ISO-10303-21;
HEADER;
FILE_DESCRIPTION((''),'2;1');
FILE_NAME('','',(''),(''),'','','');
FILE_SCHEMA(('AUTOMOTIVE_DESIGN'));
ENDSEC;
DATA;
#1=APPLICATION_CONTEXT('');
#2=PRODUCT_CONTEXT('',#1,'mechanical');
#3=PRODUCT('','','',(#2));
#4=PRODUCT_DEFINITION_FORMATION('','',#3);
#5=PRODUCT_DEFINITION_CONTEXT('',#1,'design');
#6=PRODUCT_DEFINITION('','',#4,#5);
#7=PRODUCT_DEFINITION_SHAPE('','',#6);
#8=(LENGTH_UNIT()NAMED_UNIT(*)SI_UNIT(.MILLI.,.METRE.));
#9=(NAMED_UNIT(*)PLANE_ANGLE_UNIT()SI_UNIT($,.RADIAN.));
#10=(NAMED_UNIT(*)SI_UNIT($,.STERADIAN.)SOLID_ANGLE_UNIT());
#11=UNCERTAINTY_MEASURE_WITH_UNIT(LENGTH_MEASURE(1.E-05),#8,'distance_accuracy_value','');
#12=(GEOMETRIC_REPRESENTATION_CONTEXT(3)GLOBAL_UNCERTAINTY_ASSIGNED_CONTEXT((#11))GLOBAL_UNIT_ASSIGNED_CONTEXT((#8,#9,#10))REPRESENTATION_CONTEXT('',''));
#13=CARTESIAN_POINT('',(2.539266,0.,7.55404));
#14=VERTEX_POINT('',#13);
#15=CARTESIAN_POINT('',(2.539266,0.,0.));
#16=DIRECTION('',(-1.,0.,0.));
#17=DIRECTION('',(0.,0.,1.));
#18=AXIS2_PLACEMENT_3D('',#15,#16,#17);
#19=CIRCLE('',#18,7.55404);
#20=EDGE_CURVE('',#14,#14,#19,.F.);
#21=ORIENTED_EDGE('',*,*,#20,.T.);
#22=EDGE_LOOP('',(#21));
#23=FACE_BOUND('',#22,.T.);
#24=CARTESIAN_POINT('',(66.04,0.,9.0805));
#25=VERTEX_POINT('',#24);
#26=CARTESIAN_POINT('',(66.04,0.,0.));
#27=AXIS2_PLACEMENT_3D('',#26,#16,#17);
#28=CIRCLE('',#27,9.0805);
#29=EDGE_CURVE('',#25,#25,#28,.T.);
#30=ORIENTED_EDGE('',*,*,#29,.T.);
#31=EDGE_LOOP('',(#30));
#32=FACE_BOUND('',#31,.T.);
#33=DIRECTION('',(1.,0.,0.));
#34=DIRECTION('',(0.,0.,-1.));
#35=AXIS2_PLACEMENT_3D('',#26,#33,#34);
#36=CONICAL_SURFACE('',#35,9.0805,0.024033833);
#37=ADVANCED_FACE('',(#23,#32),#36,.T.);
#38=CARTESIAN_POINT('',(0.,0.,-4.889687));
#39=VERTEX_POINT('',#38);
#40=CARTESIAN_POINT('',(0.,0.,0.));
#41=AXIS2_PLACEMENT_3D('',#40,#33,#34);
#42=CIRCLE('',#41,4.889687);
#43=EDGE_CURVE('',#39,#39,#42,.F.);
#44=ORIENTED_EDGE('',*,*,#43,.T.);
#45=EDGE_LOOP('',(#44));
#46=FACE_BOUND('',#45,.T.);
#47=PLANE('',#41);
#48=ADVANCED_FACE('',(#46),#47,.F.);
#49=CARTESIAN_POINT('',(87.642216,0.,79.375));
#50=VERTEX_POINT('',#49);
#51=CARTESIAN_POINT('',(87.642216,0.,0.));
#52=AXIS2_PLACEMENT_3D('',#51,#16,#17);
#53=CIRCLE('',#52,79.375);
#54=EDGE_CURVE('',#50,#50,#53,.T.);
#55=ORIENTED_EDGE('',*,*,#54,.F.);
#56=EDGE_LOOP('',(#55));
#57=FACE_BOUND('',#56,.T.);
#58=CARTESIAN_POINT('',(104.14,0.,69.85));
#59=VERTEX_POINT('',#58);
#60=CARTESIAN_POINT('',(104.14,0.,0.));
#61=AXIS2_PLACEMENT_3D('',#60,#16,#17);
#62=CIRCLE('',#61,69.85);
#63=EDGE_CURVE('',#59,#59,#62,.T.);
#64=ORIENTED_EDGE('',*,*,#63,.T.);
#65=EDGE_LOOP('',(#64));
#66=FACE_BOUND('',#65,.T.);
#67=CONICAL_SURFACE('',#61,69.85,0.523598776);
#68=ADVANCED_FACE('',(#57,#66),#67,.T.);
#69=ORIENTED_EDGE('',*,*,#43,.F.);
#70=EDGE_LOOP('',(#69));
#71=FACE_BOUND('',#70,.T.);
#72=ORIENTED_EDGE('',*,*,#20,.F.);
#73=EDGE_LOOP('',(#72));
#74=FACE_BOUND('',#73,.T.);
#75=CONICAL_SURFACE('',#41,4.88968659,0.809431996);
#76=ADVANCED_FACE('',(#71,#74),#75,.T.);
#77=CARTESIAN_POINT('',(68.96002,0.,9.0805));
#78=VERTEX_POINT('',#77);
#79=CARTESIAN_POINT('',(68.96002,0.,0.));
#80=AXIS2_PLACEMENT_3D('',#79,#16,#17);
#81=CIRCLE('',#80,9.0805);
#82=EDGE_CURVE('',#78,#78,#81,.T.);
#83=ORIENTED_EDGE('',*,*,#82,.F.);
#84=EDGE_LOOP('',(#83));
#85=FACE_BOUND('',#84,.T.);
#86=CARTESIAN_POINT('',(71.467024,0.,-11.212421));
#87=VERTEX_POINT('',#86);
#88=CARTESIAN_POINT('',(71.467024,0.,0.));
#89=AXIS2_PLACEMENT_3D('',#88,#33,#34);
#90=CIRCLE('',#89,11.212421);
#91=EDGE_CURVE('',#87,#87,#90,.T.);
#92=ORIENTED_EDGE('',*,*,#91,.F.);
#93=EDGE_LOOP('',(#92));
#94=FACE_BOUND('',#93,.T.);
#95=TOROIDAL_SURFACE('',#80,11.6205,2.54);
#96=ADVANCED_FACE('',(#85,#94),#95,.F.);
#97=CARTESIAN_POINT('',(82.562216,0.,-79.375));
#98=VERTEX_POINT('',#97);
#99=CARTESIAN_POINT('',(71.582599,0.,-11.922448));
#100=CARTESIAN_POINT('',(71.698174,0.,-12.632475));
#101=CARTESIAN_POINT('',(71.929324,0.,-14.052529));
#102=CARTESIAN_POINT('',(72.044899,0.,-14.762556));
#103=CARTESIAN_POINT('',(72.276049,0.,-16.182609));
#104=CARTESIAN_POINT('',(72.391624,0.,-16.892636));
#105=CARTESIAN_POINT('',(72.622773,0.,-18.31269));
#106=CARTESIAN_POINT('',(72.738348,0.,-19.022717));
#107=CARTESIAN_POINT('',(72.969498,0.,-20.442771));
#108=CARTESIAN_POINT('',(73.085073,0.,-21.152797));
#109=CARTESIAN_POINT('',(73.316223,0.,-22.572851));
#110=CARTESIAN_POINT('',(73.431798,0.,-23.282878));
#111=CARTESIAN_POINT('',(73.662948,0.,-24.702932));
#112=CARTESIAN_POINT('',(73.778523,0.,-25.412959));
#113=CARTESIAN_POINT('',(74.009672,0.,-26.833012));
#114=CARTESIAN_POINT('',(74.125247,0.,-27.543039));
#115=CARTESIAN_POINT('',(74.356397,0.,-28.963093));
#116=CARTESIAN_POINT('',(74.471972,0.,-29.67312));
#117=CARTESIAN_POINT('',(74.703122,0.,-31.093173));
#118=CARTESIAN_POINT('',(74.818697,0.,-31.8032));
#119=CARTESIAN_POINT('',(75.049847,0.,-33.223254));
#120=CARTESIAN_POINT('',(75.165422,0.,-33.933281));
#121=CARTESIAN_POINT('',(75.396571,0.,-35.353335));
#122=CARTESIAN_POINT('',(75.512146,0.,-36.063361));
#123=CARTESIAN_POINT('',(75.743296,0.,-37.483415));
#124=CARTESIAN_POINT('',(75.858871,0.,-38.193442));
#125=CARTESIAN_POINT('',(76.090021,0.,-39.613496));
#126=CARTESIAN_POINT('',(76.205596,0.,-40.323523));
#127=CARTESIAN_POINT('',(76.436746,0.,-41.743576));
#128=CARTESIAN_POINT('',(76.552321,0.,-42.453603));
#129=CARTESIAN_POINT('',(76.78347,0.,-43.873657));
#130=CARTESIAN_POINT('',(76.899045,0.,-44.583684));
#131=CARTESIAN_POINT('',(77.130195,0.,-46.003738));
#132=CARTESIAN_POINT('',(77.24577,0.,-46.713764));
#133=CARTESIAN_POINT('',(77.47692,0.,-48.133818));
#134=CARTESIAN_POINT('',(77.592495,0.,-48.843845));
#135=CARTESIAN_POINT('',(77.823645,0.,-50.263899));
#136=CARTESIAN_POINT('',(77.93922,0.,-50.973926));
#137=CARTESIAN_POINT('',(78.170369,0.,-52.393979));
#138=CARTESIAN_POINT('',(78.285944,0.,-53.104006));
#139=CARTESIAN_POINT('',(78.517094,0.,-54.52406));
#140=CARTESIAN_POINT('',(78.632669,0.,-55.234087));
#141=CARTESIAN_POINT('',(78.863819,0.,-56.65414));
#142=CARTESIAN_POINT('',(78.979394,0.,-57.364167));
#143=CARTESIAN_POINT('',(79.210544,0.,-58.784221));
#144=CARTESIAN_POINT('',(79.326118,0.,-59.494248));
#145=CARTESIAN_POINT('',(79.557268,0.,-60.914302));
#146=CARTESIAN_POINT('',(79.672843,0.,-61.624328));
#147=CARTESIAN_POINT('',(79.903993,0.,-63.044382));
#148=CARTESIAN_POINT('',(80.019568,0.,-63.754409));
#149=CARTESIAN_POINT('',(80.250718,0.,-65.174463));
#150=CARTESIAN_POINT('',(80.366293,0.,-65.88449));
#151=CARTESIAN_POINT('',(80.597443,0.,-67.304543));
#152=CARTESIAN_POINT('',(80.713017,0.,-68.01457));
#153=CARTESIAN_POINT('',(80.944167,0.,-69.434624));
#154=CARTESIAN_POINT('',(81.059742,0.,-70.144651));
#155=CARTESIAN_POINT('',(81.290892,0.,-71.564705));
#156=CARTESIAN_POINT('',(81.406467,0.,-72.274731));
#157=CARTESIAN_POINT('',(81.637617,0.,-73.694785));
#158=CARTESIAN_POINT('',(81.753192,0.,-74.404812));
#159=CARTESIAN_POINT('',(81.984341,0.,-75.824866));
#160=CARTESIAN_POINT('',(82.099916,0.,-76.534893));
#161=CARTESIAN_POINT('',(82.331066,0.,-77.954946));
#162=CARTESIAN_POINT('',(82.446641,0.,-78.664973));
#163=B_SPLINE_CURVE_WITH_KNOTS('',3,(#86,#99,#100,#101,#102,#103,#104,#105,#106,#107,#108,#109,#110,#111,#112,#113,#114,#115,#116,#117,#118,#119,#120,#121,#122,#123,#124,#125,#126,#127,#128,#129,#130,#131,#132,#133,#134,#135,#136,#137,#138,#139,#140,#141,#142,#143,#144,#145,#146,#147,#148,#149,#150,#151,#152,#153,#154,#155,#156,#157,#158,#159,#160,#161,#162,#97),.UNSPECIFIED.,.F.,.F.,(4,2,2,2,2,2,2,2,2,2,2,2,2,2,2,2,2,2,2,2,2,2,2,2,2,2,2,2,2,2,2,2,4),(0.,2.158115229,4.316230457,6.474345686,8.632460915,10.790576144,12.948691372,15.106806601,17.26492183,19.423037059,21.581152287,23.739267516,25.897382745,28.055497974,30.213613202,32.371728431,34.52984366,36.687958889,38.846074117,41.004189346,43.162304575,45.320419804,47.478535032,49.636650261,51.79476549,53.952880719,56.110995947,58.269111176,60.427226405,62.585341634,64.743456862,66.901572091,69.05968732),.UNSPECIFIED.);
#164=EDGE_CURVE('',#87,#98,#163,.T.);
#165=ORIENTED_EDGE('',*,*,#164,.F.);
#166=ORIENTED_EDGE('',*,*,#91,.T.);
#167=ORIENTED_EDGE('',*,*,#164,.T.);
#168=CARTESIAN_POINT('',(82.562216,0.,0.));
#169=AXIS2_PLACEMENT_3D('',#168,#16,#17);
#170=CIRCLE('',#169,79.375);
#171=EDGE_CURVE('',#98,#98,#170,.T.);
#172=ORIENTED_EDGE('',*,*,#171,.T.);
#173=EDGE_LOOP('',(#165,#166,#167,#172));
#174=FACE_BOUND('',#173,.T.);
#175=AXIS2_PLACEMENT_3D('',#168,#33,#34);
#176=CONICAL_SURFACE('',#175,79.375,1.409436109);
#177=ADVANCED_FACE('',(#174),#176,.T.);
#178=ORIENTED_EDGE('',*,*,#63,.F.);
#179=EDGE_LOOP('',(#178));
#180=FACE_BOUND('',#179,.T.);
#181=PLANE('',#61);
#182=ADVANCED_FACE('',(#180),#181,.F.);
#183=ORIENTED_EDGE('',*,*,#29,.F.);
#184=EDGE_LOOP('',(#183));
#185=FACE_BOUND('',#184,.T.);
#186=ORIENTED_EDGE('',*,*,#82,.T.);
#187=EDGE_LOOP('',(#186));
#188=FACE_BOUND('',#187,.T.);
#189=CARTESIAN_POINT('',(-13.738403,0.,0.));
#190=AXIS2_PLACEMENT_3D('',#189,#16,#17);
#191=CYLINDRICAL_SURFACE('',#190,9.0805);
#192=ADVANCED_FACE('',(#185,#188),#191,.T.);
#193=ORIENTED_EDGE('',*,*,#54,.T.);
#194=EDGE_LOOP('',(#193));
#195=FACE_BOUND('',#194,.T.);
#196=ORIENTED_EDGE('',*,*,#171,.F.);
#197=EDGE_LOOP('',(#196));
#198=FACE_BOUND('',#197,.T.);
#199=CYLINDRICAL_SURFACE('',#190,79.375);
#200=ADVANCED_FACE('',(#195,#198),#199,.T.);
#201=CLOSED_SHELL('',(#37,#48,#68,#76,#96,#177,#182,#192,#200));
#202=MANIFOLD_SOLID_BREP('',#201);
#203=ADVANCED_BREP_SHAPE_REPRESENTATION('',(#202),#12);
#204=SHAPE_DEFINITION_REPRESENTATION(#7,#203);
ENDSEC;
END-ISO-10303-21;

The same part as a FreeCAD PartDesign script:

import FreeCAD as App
import Part
import Sketcher
Q = App.Units.Quantity


def edges_at(feature, points):
    """Names of the edges that pass closest to the given points."""
    edges = feature.Shape.Edges
    near = lambda p: min(range(len(edges)), key=lambda i: edges[i].distToShape(Part.Vertex(*p))[0])
    return sorted({f"Edge{near(p) + 1}" for p in points})


def add_polygon(sketch, points):
    """Adds a closed chain of lines whose ends are joined by coincident constraints."""
    first, n = sketch.GeometryCount, len(points)
    for a, b in zip(points, points[1:] + points[:1]):
        sketch.addGeometry(Part.LineSegment(App.Vector(*a, 0), App.Vector(*b, 0)), False)
    for i in range(n):
        sketch.addConstraint(Sketcher.Constraint("Coincident", first + i, 2, first + (i + 1) % n, 1))

doc = App.newDocument("Part")
body = doc.addObject("PartDesign::Body", "Body")

sketch1 = doc.addObject("Sketcher::SketchObject", "Sketch")
body.addObject(sketch1)
sketch1.AttachmentSupport = (doc.XY_Plane, [""])
sketch1.MapMode = "FlatFace"
add_polygon(sketch1, [(0, 7), (0, 0), (104, 0), (104, 70), (88, 79), (83, 79), (71, 9), (66, 9)])
sketch1.addConstraint([
    Sketcher.Constraint("Vertical", 0),
    Sketcher.Constraint("Horizontal", 1),
    Sketcher.Constraint("Vertical", 2),
    Sketcher.Constraint("Horizontal", 4),
    Sketcher.Constraint("Horizontal", 6),
    Sketcher.Constraint("Coincident", 0, 2, -1, 1),
    Sketcher.Constraint("Equal", 4, 6),
    Sketcher.Constraint("DistanceX", 1, 1, 1, 2, Q("4.1 in")),
    Sketcher.Constraint("DistanceX", 4, 2, 4, 1, Q("0.2 in")),
    Sketcher.Constraint("Angle", 3, Q("150 deg")),
    Sketcher.Constraint("DistanceY", 2, 1, 2, 2, Q("2.75 in")),
    Sketcher.Constraint("DistanceX", -1, 1, 5, 2, Q("2.8 in")),
    Sketcher.Constraint("Distance", 3, Q("0.75 in")),
    Sketcher.Constraint("DistanceY", 0, 2, 0, 1, Q("0.295 in")),
    Sketcher.Constraint("DistanceY", 7, 2, 6, 2, Q("0.0625 in")),
])
revolution = doc.addObject("PartDesign::Revolution", "Revolution")
body.addObject(revolution)
revolution.Profile = sketch1
revolution.ReferenceAxis = (sketch1, ["H_Axis"])
revolution.Angle = 360
doc.recompute()

fillet = doc.addObject("PartDesign::Fillet", "Fillet")
body.addObject(fillet)
fillet.Base = (revolution, edges_at(revolution, [(71.12, 0, -9.081)]))
fillet.Radius = Q("0.1 in")
doc.recompute()

chamfer = doc.addObject("PartDesign::Chamfer", "Chamfer")
body.addObject(chamfer)
chamfer.Base = (fillet, edges_at(fillet, [(0, 0, -7.493)]))
chamfer.ChamferType = "Two distances"
chamfer.Size = Q("0.1 in")
chamfer.Size2 = 2.603313

doc.recompute()
